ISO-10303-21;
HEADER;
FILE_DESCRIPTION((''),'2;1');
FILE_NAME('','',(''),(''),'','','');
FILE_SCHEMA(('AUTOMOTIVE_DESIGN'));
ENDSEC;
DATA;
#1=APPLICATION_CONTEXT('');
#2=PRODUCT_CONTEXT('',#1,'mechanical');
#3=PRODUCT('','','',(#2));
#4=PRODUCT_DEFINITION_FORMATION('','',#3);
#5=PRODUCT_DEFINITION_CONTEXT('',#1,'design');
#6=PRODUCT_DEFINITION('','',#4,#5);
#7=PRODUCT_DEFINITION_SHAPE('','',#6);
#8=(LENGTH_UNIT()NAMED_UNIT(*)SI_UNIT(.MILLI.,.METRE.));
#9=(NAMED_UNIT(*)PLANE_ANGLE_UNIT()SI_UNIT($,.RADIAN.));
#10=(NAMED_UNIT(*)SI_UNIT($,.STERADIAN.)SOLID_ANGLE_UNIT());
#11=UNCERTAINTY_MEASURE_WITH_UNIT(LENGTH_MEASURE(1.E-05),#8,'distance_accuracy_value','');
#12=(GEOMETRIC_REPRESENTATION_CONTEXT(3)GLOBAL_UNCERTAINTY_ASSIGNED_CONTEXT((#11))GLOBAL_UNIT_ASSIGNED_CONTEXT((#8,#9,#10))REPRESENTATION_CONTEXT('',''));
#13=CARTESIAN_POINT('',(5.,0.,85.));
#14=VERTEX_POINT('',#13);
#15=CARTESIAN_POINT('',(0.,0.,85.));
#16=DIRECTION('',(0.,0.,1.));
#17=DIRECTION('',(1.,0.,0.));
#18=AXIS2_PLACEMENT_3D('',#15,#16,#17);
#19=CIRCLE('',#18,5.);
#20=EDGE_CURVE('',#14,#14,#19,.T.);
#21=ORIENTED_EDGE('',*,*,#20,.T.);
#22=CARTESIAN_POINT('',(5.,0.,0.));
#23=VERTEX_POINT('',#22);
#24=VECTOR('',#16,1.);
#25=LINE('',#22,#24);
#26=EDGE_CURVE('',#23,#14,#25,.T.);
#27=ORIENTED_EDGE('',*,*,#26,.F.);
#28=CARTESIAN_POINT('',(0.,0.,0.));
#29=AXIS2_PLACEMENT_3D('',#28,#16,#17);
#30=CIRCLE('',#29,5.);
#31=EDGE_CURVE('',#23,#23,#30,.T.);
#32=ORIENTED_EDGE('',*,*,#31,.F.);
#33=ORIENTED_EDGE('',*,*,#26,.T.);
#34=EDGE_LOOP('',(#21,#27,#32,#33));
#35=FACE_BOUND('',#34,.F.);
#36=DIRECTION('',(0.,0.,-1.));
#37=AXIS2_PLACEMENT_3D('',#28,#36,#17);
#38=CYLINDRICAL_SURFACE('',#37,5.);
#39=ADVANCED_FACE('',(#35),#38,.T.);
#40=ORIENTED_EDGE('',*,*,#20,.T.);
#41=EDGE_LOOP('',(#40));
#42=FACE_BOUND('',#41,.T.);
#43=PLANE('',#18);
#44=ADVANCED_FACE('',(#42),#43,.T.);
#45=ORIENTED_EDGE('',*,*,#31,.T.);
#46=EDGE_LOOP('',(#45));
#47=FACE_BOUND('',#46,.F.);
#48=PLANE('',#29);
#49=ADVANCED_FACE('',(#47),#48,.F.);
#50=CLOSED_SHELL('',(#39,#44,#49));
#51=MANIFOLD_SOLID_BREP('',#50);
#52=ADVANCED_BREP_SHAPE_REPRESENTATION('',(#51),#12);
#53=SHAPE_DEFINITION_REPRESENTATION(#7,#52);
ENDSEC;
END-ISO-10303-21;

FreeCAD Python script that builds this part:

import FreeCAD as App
import Part
import Sketcher

V = App.Vector
Q = App.Units.Quantity

doc = App.newDocument("Part")
body = doc.addObject("PartDesign::Body", "Body")

# Sketch on XY plane
sketch1 = body.newObject("Sketcher::SketchObject", "Sketch")
sketch1.AttachmentSupport = (doc.getObject("XY_Plane"), [""])
sketch1.MapMode = "FlatFace"
sketch1.addGeometry(Part.Circle(V(0, 0, 0), V(0, 0, 1), 5), False)
sketch1.addConstraint(Sketcher.Constraint("Coincident", 0, 3, -1, 1))
sketch1.addConstraint(Sketcher.Constraint("Diameter", 0, Q("10 mm")))
pad1 = body.newObject("PartDesign::Pad", "Pad")
pad1.Profile = sketch1
pad1.Length = 85

doc.recompute()
